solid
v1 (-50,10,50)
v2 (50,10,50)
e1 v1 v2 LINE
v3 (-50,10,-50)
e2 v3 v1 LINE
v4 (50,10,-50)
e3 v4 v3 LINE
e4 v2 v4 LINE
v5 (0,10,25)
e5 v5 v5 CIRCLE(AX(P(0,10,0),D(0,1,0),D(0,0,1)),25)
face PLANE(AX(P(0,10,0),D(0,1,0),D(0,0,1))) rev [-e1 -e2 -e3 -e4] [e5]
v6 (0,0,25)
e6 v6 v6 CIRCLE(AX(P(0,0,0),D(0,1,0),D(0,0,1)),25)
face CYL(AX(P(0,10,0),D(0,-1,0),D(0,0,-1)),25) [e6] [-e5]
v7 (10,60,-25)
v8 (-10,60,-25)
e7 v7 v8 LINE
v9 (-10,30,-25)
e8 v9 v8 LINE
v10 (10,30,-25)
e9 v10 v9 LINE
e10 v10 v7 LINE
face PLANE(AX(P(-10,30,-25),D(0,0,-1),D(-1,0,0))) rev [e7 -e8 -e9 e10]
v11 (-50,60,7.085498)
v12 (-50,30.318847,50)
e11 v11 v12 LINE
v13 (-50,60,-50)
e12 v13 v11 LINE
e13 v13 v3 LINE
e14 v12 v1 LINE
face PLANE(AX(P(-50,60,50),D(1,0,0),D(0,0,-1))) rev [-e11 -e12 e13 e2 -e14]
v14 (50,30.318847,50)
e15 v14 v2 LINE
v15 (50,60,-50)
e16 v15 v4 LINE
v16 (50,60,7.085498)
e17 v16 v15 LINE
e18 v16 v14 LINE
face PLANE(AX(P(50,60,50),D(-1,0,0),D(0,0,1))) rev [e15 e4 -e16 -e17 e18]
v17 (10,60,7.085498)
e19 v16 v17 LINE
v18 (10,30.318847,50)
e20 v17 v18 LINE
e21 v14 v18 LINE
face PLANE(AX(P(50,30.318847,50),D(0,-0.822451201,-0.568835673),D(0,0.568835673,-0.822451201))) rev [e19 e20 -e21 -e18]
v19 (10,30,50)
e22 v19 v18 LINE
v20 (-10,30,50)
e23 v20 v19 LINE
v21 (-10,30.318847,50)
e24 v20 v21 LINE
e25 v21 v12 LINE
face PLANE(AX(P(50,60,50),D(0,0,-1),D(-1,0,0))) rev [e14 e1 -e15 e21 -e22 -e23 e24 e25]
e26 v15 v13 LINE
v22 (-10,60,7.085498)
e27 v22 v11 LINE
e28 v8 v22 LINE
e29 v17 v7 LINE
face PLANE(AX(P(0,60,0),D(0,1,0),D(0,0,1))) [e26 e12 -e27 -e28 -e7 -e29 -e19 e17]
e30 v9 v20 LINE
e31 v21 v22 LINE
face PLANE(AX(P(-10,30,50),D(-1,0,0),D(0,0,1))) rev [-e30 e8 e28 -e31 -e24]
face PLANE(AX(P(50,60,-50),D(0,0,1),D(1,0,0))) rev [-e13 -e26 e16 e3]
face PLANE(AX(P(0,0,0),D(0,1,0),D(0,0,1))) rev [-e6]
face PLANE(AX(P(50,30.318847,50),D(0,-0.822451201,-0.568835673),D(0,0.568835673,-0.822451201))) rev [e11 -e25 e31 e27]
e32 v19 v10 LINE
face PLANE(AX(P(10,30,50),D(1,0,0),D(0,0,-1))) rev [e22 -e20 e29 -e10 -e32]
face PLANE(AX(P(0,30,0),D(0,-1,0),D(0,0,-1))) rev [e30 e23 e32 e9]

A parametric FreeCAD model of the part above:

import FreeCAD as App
import Part
import Sketcher

V = App.Vector

doc = App.newDocument("Part")
body = doc.addObject("PartDesign::Body", "Body")

# Sketch on XZ plane
sketch1 = body.newObject("Sketcher::SketchObject", "Sketch")
sketch1.AttachmentSupport = (doc.getObject("XZ_Plane"), [""])
sketch1.MapMode = "FlatFace"
sketch1.addGeometry(Part.Circle(V(0, 0, 0), V(0, 0, 1), 25), False)
sketch1.addConstraint([
    Sketcher.Constraint("Coincident", 0, 3, -1, 1),
    Sketcher.Constraint("Diameter", 0, 50.0),
])
pad1 = body.newObject("PartDesign::Pad", "Pad")
pad1.Profile = sketch1
pad1.Length = 10
pad1.Reversed = True

# Sketch on XZ plane
sketch2 = body.newObject("Sketcher::SketchObject", "Sketch001")
sketch2.AttachmentSupport = (doc.getObject("XZ_Plane"), [""])
sketch2.MapMode = "FlatFace"
sketch2.AttachmentOffset = App.Placement(V(0, 0, -10), App.Rotation())
sketch2.addGeometry([
    Part.LineSegment(V(-50, -50, 0), V(-50, 50, 0)),
    Part.LineSegment(V(-50, 50, 0), V(50, 50, 0)),
    Part.LineSegment(V(50, 50, 0), V(50, -50, 0)),
    Part.LineSegment(V(50, -50, 0), V(-50, -50, 0)),
], False)
sketch2.addConstraint([
    Sketcher.Constraint("Coincident", 0, 2, 1, 1),
    Sketcher.Constraint("Coincident", 1, 2, 2, 1),
    Sketcher.Constraint("Coincident", 2, 2, 3, 1),
    Sketcher.Constraint("Coincident", 3, 2, 0, 1),
    Sketcher.Constraint("Vertical", 0),
    Sketcher.Constraint("Horizontal", 1),
    Sketcher.Constraint("Vertical", 2),
    Sketcher.Constraint("Horizontal", 3),
    Sketcher.Constraint("Symmetric", 0, 2, 2, 2, -1, 1),
    Sketcher.Constraint("Equal", 3, 0),
    Sketcher.Constraint("DistanceX", 1, 1, 1, 2, 100.0),
])
pad2 = body.newObject("PartDesign::Pad", "Pad001")
pad2.Profile = sketch2
pad2.Length = 50
pad2.Reversed = True

# Sketch on YZ plane
sketch3 = body.newObject("Sketcher::SketchObject", "Sketch002")
sketch3.AttachmentSupport = (doc.getObject("YZ_Plane"), [""])
sketch3.MapMode = "FlatFace"
sketch3.AttachmentOffset = App.Placement(V(0, 0, -50), App.Rotation())
sketch3.addGeometry([
    Part.LineSegment(V(60, 7, 0), V(30, 50, 0)),
    Part.LineSegment(V(30, 50, 0), V(60, 50, 0)),
    Part.LineSegment(V(60, 50, 0), V(60, 7, 0)),
], False)
sketch3.addConstraint([
    Sketcher.Constraint("Coincident", 0, 2, 1, 1),
    Sketcher.Constraint("Coincident", 1, 2, 2, 1),
    Sketcher.Constraint("Coincident", 2, 2, 0, 1),
    Sketcher.Constraint("Horizontal", 1),
    Sketcher.Constraint("Vertical", 2),
    Sketcher.Constraint("DistanceY", -1, 1, 0, 2, 50.0),
    Sketcher.Constraint("DistanceX", -1, 1, 1, 2, 60.0),
    Sketcher.Constraint("DistanceY", 2, 2, 2, 1, 42.914502),
    Sketcher.Constraint("DistanceX", 1, 1, 1, 2, 29.681153),
])
pocket1 = body.newObject("PartDesign::Pocket", "Pocket")
pocket1.Profile = sketch3
pocket1.Type = "ThroughAll"
pocket1.Reversed = True

# Sketch on XZ plane
sketch4 = body.newObject("Sketcher::SketchObject", "Sketch003")
sketch4.AttachmentSupport = (doc.getObject("XZ_Plane"), [""])
sketch4.MapMode = "FlatFace"
sketch4.AttachmentOffset = App.Placement(V(0, 0, -60), App.Rotation())
sketch4.addGeometry([
    Part.LineSegment(V(-10, -25, 0), V(-10, 50, 0)),
    Part.LineSegment(V(-10, 50, 0), V(10, 50, 0)),
    Part.LineSegment(V(10, 50, 0), V(10, -25, 0)),
    Part.LineSegment(V(10, -25, 0), V(-10, -25, 0)),
], False)
sketch4.addConstraint([
    Sketcher.Constraint("Coincident", 0, 2, 1, 1),
    Sketcher.Constraint("Coincident", 1, 2, 2, 1),
    Sketcher.Constraint("Coincident", 2, 2, 3, 1),
    Sketcher.Constraint("Coincident", 3, 2, 0, 1),
    Sketcher.Constraint("Vertical", 0),
    Sketcher.Constraint("Horizontal", 1),
    Sketcher.Constraint("Vertical", 2),
    Sketcher.Constraint("Horizontal", 3),
    Sketcher.Constraint("DistanceX", 1, 1, 1, 2, 20.0),
    Sketcher.Constraint("DistanceY", 0, 1, 0, 2, 75.0),
    Sketcher.Constraint("DistanceX", 0, 2, -1, 1, 10.0),
    Sketcher.Constraint("DistanceY", -1, 1, 0, 2, 50.0),
])
pocket2 = body.newObject("PartDesign::Pocket", "Pocket001")
pocket2.Profile = sketch4
pocket2.Length = 30
pocket2.Reversed = True

doc.recompute()
